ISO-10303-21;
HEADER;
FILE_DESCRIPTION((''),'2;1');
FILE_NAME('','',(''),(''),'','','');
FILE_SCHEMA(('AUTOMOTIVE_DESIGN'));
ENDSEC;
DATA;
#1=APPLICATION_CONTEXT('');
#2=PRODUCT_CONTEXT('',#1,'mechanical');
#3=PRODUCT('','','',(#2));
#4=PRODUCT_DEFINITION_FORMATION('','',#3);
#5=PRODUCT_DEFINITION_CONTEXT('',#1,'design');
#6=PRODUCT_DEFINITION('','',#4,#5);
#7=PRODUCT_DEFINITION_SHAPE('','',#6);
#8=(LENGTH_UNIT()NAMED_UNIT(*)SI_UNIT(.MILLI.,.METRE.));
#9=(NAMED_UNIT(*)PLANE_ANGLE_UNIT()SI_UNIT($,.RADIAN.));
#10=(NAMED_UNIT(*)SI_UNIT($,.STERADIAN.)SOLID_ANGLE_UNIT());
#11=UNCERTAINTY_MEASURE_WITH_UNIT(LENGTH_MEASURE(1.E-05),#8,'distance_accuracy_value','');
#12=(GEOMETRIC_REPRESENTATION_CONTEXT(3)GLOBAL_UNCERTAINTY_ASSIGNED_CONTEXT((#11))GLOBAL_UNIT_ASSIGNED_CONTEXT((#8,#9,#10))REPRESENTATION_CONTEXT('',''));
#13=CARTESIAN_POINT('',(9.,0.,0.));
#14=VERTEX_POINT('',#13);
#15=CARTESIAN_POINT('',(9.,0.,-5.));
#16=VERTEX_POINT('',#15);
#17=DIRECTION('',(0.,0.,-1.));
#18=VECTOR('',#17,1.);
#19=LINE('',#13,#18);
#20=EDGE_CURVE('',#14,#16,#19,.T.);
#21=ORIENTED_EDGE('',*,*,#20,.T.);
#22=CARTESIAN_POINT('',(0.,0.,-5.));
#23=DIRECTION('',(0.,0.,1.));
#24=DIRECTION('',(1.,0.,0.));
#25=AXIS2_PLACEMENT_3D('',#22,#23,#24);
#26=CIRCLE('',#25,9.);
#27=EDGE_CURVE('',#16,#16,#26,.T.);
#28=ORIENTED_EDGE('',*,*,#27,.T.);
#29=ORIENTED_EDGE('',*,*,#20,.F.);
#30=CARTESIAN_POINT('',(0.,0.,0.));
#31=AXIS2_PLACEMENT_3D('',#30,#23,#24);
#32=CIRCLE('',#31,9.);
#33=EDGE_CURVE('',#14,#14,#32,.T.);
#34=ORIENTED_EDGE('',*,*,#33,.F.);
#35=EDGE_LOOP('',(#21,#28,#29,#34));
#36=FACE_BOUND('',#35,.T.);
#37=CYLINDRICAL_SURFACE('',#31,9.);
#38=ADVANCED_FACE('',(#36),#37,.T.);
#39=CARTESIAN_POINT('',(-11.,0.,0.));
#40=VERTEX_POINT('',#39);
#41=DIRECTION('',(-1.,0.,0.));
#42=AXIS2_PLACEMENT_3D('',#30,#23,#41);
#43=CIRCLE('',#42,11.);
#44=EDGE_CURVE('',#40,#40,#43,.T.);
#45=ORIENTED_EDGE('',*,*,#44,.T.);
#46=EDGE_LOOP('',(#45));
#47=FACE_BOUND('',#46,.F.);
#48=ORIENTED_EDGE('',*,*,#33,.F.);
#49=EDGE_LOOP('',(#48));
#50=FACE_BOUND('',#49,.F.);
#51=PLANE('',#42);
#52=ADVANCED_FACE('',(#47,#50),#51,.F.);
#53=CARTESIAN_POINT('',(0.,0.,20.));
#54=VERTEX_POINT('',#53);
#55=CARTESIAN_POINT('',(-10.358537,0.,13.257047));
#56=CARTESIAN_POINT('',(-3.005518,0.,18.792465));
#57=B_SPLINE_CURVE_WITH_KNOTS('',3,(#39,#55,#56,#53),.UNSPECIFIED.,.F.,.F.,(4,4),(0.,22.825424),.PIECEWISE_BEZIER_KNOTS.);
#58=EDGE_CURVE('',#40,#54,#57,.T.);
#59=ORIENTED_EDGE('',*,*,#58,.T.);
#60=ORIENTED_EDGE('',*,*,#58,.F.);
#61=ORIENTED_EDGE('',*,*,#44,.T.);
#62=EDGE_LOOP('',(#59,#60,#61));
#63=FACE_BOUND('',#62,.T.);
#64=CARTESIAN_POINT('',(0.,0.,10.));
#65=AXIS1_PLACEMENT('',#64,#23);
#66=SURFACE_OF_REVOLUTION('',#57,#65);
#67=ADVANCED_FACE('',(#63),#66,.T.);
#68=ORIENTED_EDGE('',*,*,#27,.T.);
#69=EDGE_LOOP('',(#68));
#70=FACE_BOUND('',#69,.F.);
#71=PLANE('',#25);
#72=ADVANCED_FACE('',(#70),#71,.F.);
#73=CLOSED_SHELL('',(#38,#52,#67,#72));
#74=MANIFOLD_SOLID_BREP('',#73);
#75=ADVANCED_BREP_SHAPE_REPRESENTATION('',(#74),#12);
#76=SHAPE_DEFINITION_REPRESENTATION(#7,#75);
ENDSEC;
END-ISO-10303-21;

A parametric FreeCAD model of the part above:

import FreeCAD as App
import Part
import Sketcher
Q = App.Units.Quantity

doc = App.newDocument("Part")
body = doc.addObject("PartDesign::Body", "Body")

sketch1 = body.newObject("Sketcher::SketchObject", "Sketch")
sketch1.AttachmentSupport = (doc.getObject("XZ_Plane"), [""])
sketch1.MapMode = "FlatFace"
sketch1.addGeometry(Part.LineSegment(App.Vector(-11, 0, 0), App.Vector(0, 0, 0)), False)
sketch1.addGeometry(Part.LineSegment(App.Vector(0, 0, 0), App.Vector(0, 20, 0)), False)
sketch1.addGeometry(Part.BSplineCurve([App.Vector(-11, 0, 0), App.Vector(-10.358537, 13.257047, 0), App.Vector(-3.005518, 18.792465, 0), App.Vector(0, 20, 0)], [4, 4], [0, 22.825424], False, 3, [1, 1, 1, 1], False), False)
sketch1.addConstraint(Sketcher.Constraint("Block", 2))
sketch1.addConstraint(Sketcher.Constraint("Coincident", 0, 2, 1, 1))
sketch1.addConstraint(Sketcher.Constraint("Coincident", 1, 2, 2, 2))
sketch1.addConstraint(Sketcher.Constraint("Coincident", 2, 1, 0, 1))
sketch1.addConstraint(Sketcher.Constraint("Horizontal", 0))
sketch1.addConstraint(Sketcher.Constraint("Vertical", 1))
revolution = body.newObject("PartDesign::Revolution", "Revolution")
revolution.Profile = sketch1
revolution.ReferenceAxis = (sketch1, ["V_Axis"])
revolution.Angle = 360

sketch2 = body.newObject("Sketcher::SketchObject", "Sketch001")
sketch2.AttachmentSupport = (doc.getObject("XY_Plane"), [""])
sketch2.MapMode = "FlatFace"
sketch2.addGeometry(Part.Circle(App.Vector(0, 0, 0), App.Vector(0, 0, 1), 9), False)
sketch2.addConstraint(Sketcher.Constraint("Coincident", 0, 3, -1, 1))
sketch2.addConstraint(Sketcher.Constraint("Diameter", 0, Q("18 mm")))
pad1 = body.newObject("PartDesign::Pad", "Pad")
pad1.Profile = sketch2
pad1.Length = 5
pad1.Reversed = True

doc.recompute()
